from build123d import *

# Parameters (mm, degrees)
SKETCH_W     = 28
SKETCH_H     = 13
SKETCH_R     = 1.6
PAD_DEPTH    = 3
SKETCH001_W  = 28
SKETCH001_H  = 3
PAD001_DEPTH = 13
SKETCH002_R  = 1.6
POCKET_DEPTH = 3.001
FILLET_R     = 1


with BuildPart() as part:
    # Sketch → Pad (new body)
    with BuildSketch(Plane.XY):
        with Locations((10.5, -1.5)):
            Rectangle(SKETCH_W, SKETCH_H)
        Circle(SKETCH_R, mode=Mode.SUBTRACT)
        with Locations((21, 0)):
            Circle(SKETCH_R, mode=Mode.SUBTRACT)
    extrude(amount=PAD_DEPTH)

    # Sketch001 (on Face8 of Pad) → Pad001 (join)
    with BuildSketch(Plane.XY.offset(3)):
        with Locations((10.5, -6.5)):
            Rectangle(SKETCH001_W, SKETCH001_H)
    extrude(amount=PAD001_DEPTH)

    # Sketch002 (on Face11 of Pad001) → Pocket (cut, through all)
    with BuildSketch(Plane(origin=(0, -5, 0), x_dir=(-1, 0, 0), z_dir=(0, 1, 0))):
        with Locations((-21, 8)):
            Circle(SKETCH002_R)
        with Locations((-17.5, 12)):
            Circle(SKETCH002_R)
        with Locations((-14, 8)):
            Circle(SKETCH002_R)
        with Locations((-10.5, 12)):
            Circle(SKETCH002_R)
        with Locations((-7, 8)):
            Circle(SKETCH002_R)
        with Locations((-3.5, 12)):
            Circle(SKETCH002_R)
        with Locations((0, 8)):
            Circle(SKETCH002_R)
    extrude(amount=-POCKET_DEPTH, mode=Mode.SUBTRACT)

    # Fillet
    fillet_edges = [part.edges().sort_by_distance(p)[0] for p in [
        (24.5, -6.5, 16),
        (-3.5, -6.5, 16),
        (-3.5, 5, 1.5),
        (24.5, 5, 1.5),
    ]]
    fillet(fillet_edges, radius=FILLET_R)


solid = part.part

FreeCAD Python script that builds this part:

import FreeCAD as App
import Part
import Sketcher
from FreeCAD import Vector


def edges_at(feature, points):
    """Names of the edges that pass closest to the given points."""
    edges = feature.Shape.Edges
    near = lambda p: min(range(len(edges)), key=lambda i: edges[i].distToShape(Part.Vertex(*p))[0])
    return sorted({f"Edge{near(p) + 1}" for p in points})


def add_polygon(sketch, points):
    """Adds a closed chain of lines whose ends are joined by coincident constraints."""
    first, n = sketch.GeometryCount, len(points)
    for a, b in zip(points, points[1:] + points[:1]):
        sketch.addGeometry(Part.LineSegment(App.Vector(*a, 0), App.Vector(*b, 0)), False)
    for i in range(n):
        sketch.addConstraint(Sketcher.Constraint("Coincident", first + i, 2, first + (i + 1) % n, 1))

doc = App.newDocument("Part")
body = doc.addObject("PartDesign::Body", "Body")

sketch1 = doc.addObject("Sketcher::SketchObject", "Sketch")
body.addObject(sketch1)
sketch1.AttachmentSupport = (doc.XY_Plane, [""])
sketch1.MapMode = "FlatFace"
add_polygon(sketch1, [(-3.5, 5), (-3.5, -8), (24.5, -8), (24.5, 5)])
sketch1.addGeometry(Part.Circle(Vector(0, 0, 0), Vector(0, 0, 1), 1.6), False)
sketch1.addGeometry(Part.Circle(Vector(21, 0, 0), Vector(0, 0, 1), 1.6), False)
sketch1.addConstraint(Sketcher.Constraint("Vertical", 0))
sketch1.addConstraint(Sketcher.Constraint("Horizontal", 1))
sketch1.addConstraint(Sketcher.Constraint("Vertical", 2))
sketch1.addConstraint(Sketcher.Constraint("Horizontal", 3))
sketch1.addConstraint(Sketcher.Constraint("Coincident", 4, 3, -1, 1))
sketch1.addConstraint(Sketcher.Constraint("Equal", 4, 5))
sketch1.addConstraint(Sketcher.Constraint("PointOnObject", 5, 3, -1))
sketch1.addConstraint(Sketcher.Constraint("Diameter", 4, 3.2))
sketch1.addConstraint(Sketcher.Constraint("DistanceX", 1, 1, 1, 2, 28.0))
sketch1.addConstraint(Sketcher.Constraint("DistanceY", 0, 2, 0, 1, 13.0))
sketch1.addConstraint(Sketcher.Constraint("DistanceX", -1, 1, 5, 3, 21.0))
sketch1.addConstraint(Sketcher.Constraint("DistanceY", 0, 2, -1, 1, 8.0))
sketch1.addConstraint(Sketcher.Constraint("DistanceX", 0, 2, -1, 1, 3.5))
pad1 = doc.addObject("PartDesign::Pad", "Pad")
body.addObject(pad1)
pad1.Profile = sketch1
pad1.Length = 3

sketch2 = doc.addObject("Sketcher::SketchObject", "Sketch001")
body.addObject(sketch2)
sketch2.AttachmentSupport = (doc.XY_Plane, [""])
sketch2.MapMode = "FlatFace"
sketch2.AttachmentOffset = App.Placement(Vector(0, 0, 3), App.Rotation())
add_polygon(sketch2, [(-3.5, -5), (-3.5, -8), (24.5, -8), (24.5, -5)])
sketch2.addConstraint(Sketcher.Constraint("Vertical", 0))
sketch2.addConstraint(Sketcher.Constraint("Horizontal", 1))
sketch2.addConstraint(Sketcher.Constraint("Vertical", 2))
sketch2.addConstraint(Sketcher.Constraint("Horizontal", 3))
sketch2.addConstraint(Sketcher.Constraint("DistanceX", 1, 1, 1, 2, 28.0))
sketch2.addConstraint(Sketcher.Constraint("DistanceY", 0, 2, 0, 1, 3.0))
sketch2.addConstraint(Sketcher.Constraint("DistanceY", 0, 2, -1, 1, 8.0))
sketch2.addConstraint(Sketcher.Constraint("DistanceX", 0, 2, -1, 1, 3.5))
pad2 = doc.addObject("PartDesign::Pad", "Pad001")
body.addObject(pad2)
pad2.Profile = sketch2
pad2.Length = 13

sketch3 = doc.addObject("Sketcher::SketchObject", "Sketch002")
body.addObject(sketch3)
sketch3.AttachmentSupport = (doc.XZ_Plane, [""])
sketch3.MapMode = "FlatFace"
sketch3.AttachmentOffset = App.Placement(Vector(0, 0, 5), App.Rotation())
sketch3.addGeometry(Part.Circle(Vector(21, 8, 0), Vector(0, 0, 1), 1.6), False)
sketch3.addGeometry(Part.Circle(Vector(17.5, 12, 0), Vector(0, 0, 1), 1.6), False)
sketch3.addGeometry(Part.Circle(Vector(14, 8, 0), Vector(0, 0, 1), 1.6), False)
sketch3.addGeometry(Part.Circle(Vector(10.5, 12, 0), Vector(0, 0, 1), 1.6), False)
sketch3.addGeometry(Part.Circle(Vector(7, 8, 0), Vector(0, 0, 1), 1.6), False)
sketch3.addGeometry(Part.Circle(Vector(3.5, 12, 0), Vector(0, 0, 1), 1.6), False)
sketch3.addGeometry(Part.Circle(Vector(0, 8, 0), Vector(0, 0, 1), 1.6), False)
sketch3.addConstraint(Sketcher.Constraint("Equal", 0, 1))
sketch3.addConstraint(Sketcher.Constraint("Equal", 1, 2))
sketch3.addConstraint(Sketcher.Constraint("Equal", 2, 3))
sketch3.addConstraint(Sketcher.Constraint("Equal", 3, 4))
sketch3.addConstraint(Sketcher.Constraint("Equal", 4, 5))
sketch3.addConstraint(Sketcher.Constraint("Equal", 5, 6))
sketch3.addConstraint(Sketcher.Constraint("PointOnObject", 6, 3, -2))
sketch3.addConstraint(Sketcher.Constraint("Horizontal", 0, 3, 2, 3))
sketch3.addConstraint(Sketcher.Constraint("Horizontal", 1, 3, 3, 3))
sketch3.addConstraint(Sketcher.Constraint("Horizontal", 2, 3, 4, 3))
sketch3.addConstraint(Sketcher.Constraint("Horizontal", 3, 3, 5, 3))
sketch3.addConstraint(Sketcher.Constraint("Horizontal", 4, 3, 6, 3))
sketch3.addConstraint(Sketcher.Constraint("Diameter", 0, 3.2))
sketch3.addConstraint(Sketcher.Constraint("DistanceX", -1, 1, 0, 3, 21.0))
sketch3.addConstraint(Sketcher.Constraint("DistanceY", -1, 1, 0, 3, 8.0))
sketch3.addConstraint(Sketcher.Constraint("DistanceY", -1, 1, 1, 3, 12.0))
sketch3.addConstraint(Sketcher.Constraint("DistanceX", -1, 1, 2, 3, 14.0))
sketch3.addConstraint(Sketcher.Constraint("DistanceX", -1, 1, 4, 3, 7.0))
sketch3.addConstraint(Sketcher.Constraint("DistanceX", 3, 3, 1, 3, 7.0))
sketch3.addConstraint(Sketcher.Constraint("DistanceX", 5, 3, 3, 3, 7.0))
sketch3.addConstraint(Sketcher.Constraint("DistanceX", -1, 1, 1, 3, 17.5))
pocket1 = doc.addObject("PartDesign::Pocket", "Pocket")
body.addObject(pocket1)
pocket1.Profile = sketch3
pocket1.Type = "ThroughAll"
pocket1.Reversed = True
doc.recompute()

fillet = doc.addObject("PartDesign::Fillet", "Fillet")
body.addObject(fillet)
fillet.Base = (pocket1, edges_at(pocket1, [
    (24.5, -6.5, 16),
    (-3.5, -6.5, 16),
    (-3.5, 5, 1.5),
    (24.5, 5, 1.5),
]))
fillet.Radius = 1

doc.recompute()
